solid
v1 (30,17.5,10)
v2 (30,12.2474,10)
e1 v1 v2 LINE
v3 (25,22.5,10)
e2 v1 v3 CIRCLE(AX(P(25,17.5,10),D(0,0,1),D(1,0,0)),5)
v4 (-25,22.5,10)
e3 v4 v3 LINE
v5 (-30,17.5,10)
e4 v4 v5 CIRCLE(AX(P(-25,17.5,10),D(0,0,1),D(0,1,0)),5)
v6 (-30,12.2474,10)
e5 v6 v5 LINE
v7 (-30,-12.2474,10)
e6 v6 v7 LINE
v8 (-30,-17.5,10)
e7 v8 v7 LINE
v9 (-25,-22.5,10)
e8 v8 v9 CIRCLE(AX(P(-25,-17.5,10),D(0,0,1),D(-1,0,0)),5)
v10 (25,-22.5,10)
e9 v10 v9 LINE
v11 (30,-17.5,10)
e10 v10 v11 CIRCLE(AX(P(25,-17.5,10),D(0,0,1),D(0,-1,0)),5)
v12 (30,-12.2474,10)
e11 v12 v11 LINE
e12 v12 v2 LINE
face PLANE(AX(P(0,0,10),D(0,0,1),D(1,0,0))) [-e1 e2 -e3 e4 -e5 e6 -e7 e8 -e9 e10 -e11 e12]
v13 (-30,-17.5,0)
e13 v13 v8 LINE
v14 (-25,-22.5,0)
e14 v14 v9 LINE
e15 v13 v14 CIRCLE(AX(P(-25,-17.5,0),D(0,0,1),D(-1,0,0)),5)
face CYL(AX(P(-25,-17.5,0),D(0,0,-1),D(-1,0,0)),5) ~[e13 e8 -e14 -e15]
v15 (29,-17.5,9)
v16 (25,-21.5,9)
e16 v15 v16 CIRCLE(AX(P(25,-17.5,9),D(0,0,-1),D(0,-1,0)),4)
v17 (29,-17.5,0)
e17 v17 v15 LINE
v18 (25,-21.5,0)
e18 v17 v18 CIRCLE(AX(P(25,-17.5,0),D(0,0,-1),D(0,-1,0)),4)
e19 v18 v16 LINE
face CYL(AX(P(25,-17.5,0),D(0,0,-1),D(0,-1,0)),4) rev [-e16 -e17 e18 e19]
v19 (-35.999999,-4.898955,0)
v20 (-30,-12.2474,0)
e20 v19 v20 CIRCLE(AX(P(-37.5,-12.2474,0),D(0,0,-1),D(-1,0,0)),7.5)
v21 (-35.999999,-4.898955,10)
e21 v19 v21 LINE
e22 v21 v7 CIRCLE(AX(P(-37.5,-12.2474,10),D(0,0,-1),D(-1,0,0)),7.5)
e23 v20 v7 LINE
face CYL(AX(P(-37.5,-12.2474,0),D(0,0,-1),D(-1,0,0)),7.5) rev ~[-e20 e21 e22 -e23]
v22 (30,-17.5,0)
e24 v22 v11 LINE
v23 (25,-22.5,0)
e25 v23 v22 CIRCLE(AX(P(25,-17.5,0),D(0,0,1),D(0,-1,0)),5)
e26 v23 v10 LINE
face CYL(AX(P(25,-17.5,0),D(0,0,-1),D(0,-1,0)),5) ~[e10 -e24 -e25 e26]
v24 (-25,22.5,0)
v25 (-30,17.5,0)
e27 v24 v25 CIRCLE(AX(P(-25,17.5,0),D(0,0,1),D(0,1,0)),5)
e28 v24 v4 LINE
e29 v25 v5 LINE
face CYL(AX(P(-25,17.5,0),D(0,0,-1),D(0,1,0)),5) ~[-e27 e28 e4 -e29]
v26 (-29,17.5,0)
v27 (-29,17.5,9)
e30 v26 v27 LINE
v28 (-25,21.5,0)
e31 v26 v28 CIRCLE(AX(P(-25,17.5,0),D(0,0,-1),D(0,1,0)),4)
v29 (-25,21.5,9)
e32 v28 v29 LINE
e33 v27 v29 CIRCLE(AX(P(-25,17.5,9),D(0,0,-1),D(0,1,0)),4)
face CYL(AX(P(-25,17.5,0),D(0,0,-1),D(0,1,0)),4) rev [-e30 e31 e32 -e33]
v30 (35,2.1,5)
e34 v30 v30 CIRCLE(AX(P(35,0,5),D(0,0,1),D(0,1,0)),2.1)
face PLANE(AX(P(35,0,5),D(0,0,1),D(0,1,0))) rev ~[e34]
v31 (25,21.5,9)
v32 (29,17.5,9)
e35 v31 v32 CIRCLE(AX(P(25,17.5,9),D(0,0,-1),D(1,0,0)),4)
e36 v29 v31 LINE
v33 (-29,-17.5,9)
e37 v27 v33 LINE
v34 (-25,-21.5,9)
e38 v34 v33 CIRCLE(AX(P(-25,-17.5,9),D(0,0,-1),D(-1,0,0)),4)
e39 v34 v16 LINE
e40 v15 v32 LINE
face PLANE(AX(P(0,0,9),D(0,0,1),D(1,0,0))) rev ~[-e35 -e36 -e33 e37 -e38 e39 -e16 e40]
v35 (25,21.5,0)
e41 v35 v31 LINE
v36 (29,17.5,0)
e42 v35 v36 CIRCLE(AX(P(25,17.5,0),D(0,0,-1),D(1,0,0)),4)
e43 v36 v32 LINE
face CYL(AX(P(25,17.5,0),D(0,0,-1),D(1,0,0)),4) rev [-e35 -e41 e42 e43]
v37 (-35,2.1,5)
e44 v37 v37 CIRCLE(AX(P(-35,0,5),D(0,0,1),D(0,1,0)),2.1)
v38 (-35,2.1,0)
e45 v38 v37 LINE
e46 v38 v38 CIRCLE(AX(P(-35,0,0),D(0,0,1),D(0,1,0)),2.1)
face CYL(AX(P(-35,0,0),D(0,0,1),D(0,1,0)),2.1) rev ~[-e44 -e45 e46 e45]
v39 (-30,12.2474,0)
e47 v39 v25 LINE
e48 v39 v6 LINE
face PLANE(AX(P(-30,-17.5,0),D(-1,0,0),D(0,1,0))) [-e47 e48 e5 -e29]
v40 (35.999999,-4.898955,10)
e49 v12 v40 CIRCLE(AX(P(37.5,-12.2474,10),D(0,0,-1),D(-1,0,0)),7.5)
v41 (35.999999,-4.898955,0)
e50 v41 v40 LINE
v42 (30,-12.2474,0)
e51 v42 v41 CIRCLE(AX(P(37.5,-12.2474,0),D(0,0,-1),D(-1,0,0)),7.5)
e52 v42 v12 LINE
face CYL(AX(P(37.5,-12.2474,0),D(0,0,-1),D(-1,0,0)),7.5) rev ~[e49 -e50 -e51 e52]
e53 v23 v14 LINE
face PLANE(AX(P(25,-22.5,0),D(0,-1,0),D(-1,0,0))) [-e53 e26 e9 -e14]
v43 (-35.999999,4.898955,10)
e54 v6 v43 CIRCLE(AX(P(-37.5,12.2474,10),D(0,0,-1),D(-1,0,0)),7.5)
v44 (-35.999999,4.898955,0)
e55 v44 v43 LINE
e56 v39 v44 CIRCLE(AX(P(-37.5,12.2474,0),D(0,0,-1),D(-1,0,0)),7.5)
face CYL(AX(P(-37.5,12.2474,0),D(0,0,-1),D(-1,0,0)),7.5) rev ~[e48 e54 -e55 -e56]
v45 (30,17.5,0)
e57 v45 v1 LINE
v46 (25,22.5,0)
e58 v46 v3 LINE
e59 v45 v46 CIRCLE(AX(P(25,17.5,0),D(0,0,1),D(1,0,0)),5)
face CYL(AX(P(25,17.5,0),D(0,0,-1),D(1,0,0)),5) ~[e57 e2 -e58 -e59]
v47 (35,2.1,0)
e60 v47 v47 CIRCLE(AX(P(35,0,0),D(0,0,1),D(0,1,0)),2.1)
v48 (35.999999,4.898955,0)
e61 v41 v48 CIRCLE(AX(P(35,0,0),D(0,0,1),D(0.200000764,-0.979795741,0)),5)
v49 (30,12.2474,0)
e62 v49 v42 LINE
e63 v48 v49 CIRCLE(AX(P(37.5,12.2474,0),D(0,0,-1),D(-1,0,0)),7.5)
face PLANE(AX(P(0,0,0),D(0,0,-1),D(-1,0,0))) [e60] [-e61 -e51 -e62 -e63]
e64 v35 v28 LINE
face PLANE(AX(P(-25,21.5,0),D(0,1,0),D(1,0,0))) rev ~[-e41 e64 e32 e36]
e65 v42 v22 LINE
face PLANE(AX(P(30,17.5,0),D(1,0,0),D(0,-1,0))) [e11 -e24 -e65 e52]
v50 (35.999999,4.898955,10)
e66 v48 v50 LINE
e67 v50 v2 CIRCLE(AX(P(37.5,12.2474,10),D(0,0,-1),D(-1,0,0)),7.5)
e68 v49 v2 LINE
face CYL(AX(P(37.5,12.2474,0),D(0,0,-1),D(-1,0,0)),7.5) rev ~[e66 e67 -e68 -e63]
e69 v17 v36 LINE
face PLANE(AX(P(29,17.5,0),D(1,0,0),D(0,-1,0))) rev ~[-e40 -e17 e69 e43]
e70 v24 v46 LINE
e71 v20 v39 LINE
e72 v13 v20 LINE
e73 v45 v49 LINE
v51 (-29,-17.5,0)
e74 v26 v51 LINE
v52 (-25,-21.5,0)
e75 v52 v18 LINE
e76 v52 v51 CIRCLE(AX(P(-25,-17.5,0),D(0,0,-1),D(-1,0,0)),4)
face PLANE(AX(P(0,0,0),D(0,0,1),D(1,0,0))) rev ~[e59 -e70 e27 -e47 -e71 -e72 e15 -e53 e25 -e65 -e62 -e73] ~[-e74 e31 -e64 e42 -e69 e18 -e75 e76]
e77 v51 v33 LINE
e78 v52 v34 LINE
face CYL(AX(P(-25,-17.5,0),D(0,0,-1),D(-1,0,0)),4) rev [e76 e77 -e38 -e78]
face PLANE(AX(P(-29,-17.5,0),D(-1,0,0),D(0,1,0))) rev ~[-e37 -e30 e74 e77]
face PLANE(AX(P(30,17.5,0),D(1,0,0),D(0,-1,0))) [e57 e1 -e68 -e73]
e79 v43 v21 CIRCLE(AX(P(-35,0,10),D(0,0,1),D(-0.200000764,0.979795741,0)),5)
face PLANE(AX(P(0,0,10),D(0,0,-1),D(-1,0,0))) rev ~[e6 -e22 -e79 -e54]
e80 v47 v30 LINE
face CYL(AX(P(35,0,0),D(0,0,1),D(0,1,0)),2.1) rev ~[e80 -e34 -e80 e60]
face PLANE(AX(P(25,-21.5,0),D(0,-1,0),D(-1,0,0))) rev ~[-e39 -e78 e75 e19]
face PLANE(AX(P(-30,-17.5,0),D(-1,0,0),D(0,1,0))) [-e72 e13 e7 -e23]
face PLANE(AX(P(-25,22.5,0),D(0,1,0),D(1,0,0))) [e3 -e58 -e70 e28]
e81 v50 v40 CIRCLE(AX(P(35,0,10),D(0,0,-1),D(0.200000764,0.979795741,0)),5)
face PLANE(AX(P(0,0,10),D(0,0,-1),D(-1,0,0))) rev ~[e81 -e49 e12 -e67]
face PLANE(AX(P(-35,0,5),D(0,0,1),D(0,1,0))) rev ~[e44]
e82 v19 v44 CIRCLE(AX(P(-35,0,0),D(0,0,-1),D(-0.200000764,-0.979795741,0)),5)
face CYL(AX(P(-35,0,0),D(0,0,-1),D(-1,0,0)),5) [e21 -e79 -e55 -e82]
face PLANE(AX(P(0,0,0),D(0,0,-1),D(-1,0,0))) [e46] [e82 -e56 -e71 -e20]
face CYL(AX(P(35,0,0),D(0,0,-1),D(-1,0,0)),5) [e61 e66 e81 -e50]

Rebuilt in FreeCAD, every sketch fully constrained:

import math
import FreeCAD as App
import Part
import Sketcher
from FreeCAD import Vector


def faces_at(feature, points):
    """Names of the faces that lie closest to the given points."""
    faces = feature.Shape.Faces
    near = lambda p: min(range(len(faces)), key=lambda i: faces[i].distToShape(Part.Vertex(*p))[0])
    return sorted({f"Face{near(p) + 1}" for p in points})

doc = App.newDocument("Part")
body = doc.addObject("PartDesign::Body", "Body")

sketch1 = body.newObject("Sketcher::SketchObject", "Sketch")
sketch1.AttachmentSupport = (doc.getObject("XY_Plane"), [""])
sketch1.MapMode = "FlatFace"
sketch1.addGeometry(Part.LineSegment(Vector(25, 22.5, 0), Vector(-25, 22.5, 0)), False)
sketch1.addGeometry(Part.ArcOfCircle(Part.Circle(Vector(-25, 17.5, 0), Vector(0, 0, 1), 5), math.radians(90), math.radians(180)), False)
sketch1.addGeometry(Part.LineSegment(Vector(-30, 17.5, 0), Vector(-30, -17.5, 0)), False)
sketch1.addGeometry(Part.ArcOfCircle(Part.Circle(Vector(-25, -17.5, 0), Vector(0, 0, 1), 5), math.radians(180), math.radians(270)), False)
sketch1.addGeometry(Part.LineSegment(Vector(-25, -22.5, 0), Vector(25, -22.5, 0)), False)
sketch1.addGeometry(Part.ArcOfCircle(Part.Circle(Vector(25, -17.5, 0), Vector(0, 0, 1), 5), math.radians(-90), math.radians(0)), False)
sketch1.addGeometry(Part.LineSegment(Vector(30, -17.5, 0), Vector(30, 17.5, 0)), False)
sketch1.addGeometry(Part.ArcOfCircle(Part.Circle(Vector(25, 17.5, 0), Vector(0, 0, 1), 5), math.radians(0), math.radians(90)), False)
sketch1.addConstraint(Sketcher.Constraint("Tangent", 0, 2, 1, 1))
sketch1.addConstraint(Sketcher.Constraint("Tangent", 1, 2, 2, 1))
sketch1.addConstraint(Sketcher.Constraint("Tangent", 2, 2, 3, 1))
sketch1.addConstraint(Sketcher.Constraint("Tangent", 3, 2, 4, 1))
sketch1.addConstraint(Sketcher.Constraint("Tangent", 4, 2, 5, 1))
sketch1.addConstraint(Sketcher.Constraint("Tangent", 5, 2, 6, 1))
sketch1.addConstraint(Sketcher.Constraint("Tangent", 6, 2, 7, 1))
sketch1.addConstraint(Sketcher.Constraint("Tangent", 7, 2, 0, 1))
sketch1.addConstraint(Sketcher.Constraint("Horizontal", 0))
sketch1.addConstraint(Sketcher.Constraint("Vertical", 2))
sketch1.addConstraint(Sketcher.Constraint("Horizontal", 4))
sketch1.addConstraint(Sketcher.Constraint("Vertical", 6))
sketch1.addConstraint(Sketcher.Constraint("Equal", 1, 3))
sketch1.addConstraint(Sketcher.Constraint("Equal", 3, 5))
sketch1.addConstraint(Sketcher.Constraint("Equal", 5, 7))
sketch1.addConstraint(Sketcher.Constraint("Symmetric", 1, 3, 5, 3, -1, 1))
sketch1.addConstraint(Sketcher.Constraint("Radius", 1, 5.0))
sketch1.addConstraint(Sketcher.Constraint("DistanceY", 3, 2, 0, 2, 45.0))
sketch1.addConstraint(Sketcher.Constraint("DistanceX", 0, 2, 0, 1, 50.0))
pad1 = body.newObject("PartDesign::Pad", "Pad")
pad1.Profile = sketch1
pad1.Length = 10
doc.recompute()

thickness = body.newObject("PartDesign::Thickness", "Thickness")
thickness.Base = (pad1, faces_at(pad1, [(-8.333, -7.5, 0)]))
thickness.Value = 1
thickness.Reversed = True
thickness.Join = "Intersection"

sketch2 = body.newObject("Sketcher::SketchObject", "Sketch001")
sketch2.AttachmentSupport = (doc.getObject("XY_Plane"), [""])
sketch2.MapMode = "FlatFace"
sketch2.addGeometry(Part.ArcOfCircle(Part.Circle(Vector(-37.5, -12.2474, 0), Vector(0, 0, 1), 7.5), math.radians(0), math.radians(78.462996)), False)
sketch2.addGeometry(Part.ArcOfCircle(Part.Circle(Vector(-35, 0, 0), Vector(0, 0, 1), 5), math.radians(101.537004), math.radians(258.462996)), False)
sketch2.addGeometry(Part.ArcOfCircle(Part.Circle(Vector(-37.5, 12.2474, 0), Vector(0, 0, 1), 7.5), math.radians(-78.462996), math.radians(0)), False)
sketch2.addGeometry(Part.LineSegment(Vector(-30, 12.2474, 0), Vector(-30, -12.2474, 0)), False)
sketch2.addGeometry(Part.ArcOfCircle(Part.Circle(Vector(37.5, -12.2474, 0), Vector(0, 0, 1), 7.5), math.radians(101.537004), math.radians(180)), False)
sketch2.addGeometry(Part.LineSegment(Vector(30, -12.2474, 0), Vector(30, 12.2474, 0)), False)
sketch2.addGeometry(Part.ArcOfCircle(Part.Circle(Vector(37.5, 12.2474, 0), Vector(0, 0, 1), 7.5), math.radians(180), math.radians(258.462996)), False)
sketch2.addGeometry(Part.ArcOfCircle(Part.Circle(Vector(35, 0, 0), Vector(0, 0, 1), 5), math.radians(-78.462996), math.radians(78.462996)), False)
sketch2.addConstraint(Sketcher.Constraint("Tangent", 0, 2, 1, 2))
sketch2.addConstraint(Sketcher.Constraint("Tangent", 1, 1, 2, 1))
sketch2.addConstraint(Sketcher.Constraint("Tangent", 2, 2, 3, 1))
sketch2.addConstraint(Sketcher.Constraint("Tangent", 3, 2, 0, 1))
sketch2.addConstraint(Sketcher.Constraint("Tangent", 4, 2, 5, 1))
sketch2.addConstraint(Sketcher.Constraint("Tangent", 5, 2, 6, 1))
sketch2.addConstraint(Sketcher.Constraint("Tangent", 6, 2, 7, 2))
sketch2.addConstraint(Sketcher.Constraint("Tangent", 7, 1, 4, 1))
sketch2.addConstraint(Sketcher.Constraint("Vertical", 3))
sketch2.addConstraint(Sketcher.Constraint("Vertical", 5))
sketch2.addConstraint(Sketcher.Constraint("Equal", 0, 2))
sketch2.addConstraint(Sketcher.Constraint("Equal", 2, 4))
sketch2.addConstraint(Sketcher.Constraint("Equal", 4, 6))
sketch2.addConstraint(Sketcher.Constraint("Equal", 1, 7))
sketch2.addConstraint(Sketcher.Constraint("Symmetric", 2, 3, 4, 3, -1, 1))
sketch2.addConstraint(Sketcher.Constraint("Symmetric", 1, 3, 7, 3, -2))
sketch2.addConstraint(Sketcher.Constraint("Radius", 1, 5.0))
sketch2.addConstraint(Sketcher.Constraint("Radius", 0, 7.5))
sketch2.addConstraint(Sketcher.Constraint("DistanceX", 1, 3, -1, 1, 35.0))
sketch2.addConstraint(Sketcher.Constraint("DistanceX", 0, 2, -1, 1, 36.0))
pad2 = body.newObject("PartDesign::Pad", "Pad001")
pad2.Profile = sketch2
pad2.Length = 10

sketch3 = body.newObject("Sketcher::SketchObject", "Sketch002")
sketch3.AttachmentSupport = (doc.getObject("XY_Plane"), [""])
sketch3.MapMode = "FlatFace"
sketch3.addGeometry(Part.Circle(Vector(35, 0, 0), Vector(0, 0, 1), 2.1), False)
sketch3.addGeometry(Part.Circle(Vector(-35, 0, 0), Vector(0, 0, 1), 2.1), False)
sketch3.addConstraint(Sketcher.Constraint("Equal", 0, 1))
sketch3.addConstraint(Sketcher.Constraint("Symmetric", 0, 3, 1, 3, -1, 1))
sketch3.addConstraint(Sketcher.Constraint("PointOnObject", 0, 3, -1))
sketch3.addConstraint(Sketcher.Constraint("Diameter", 0, 4.2))
sketch3.addConstraint(Sketcher.Constraint("DistanceX", -1, 1, 0, 3, 35.0))
doc.recompute()
hole = body.newObject("PartDesign::Hole", "Hole")
hole.Profile = sketch3
hole.ThreadType = "None"
hole.Diameter = 4.2
hole.DepthType = "Dimension"
hole.Depth = 5
hole.DrillPoint = "Flat"
hole.Reversed = True

doc.recompute()
